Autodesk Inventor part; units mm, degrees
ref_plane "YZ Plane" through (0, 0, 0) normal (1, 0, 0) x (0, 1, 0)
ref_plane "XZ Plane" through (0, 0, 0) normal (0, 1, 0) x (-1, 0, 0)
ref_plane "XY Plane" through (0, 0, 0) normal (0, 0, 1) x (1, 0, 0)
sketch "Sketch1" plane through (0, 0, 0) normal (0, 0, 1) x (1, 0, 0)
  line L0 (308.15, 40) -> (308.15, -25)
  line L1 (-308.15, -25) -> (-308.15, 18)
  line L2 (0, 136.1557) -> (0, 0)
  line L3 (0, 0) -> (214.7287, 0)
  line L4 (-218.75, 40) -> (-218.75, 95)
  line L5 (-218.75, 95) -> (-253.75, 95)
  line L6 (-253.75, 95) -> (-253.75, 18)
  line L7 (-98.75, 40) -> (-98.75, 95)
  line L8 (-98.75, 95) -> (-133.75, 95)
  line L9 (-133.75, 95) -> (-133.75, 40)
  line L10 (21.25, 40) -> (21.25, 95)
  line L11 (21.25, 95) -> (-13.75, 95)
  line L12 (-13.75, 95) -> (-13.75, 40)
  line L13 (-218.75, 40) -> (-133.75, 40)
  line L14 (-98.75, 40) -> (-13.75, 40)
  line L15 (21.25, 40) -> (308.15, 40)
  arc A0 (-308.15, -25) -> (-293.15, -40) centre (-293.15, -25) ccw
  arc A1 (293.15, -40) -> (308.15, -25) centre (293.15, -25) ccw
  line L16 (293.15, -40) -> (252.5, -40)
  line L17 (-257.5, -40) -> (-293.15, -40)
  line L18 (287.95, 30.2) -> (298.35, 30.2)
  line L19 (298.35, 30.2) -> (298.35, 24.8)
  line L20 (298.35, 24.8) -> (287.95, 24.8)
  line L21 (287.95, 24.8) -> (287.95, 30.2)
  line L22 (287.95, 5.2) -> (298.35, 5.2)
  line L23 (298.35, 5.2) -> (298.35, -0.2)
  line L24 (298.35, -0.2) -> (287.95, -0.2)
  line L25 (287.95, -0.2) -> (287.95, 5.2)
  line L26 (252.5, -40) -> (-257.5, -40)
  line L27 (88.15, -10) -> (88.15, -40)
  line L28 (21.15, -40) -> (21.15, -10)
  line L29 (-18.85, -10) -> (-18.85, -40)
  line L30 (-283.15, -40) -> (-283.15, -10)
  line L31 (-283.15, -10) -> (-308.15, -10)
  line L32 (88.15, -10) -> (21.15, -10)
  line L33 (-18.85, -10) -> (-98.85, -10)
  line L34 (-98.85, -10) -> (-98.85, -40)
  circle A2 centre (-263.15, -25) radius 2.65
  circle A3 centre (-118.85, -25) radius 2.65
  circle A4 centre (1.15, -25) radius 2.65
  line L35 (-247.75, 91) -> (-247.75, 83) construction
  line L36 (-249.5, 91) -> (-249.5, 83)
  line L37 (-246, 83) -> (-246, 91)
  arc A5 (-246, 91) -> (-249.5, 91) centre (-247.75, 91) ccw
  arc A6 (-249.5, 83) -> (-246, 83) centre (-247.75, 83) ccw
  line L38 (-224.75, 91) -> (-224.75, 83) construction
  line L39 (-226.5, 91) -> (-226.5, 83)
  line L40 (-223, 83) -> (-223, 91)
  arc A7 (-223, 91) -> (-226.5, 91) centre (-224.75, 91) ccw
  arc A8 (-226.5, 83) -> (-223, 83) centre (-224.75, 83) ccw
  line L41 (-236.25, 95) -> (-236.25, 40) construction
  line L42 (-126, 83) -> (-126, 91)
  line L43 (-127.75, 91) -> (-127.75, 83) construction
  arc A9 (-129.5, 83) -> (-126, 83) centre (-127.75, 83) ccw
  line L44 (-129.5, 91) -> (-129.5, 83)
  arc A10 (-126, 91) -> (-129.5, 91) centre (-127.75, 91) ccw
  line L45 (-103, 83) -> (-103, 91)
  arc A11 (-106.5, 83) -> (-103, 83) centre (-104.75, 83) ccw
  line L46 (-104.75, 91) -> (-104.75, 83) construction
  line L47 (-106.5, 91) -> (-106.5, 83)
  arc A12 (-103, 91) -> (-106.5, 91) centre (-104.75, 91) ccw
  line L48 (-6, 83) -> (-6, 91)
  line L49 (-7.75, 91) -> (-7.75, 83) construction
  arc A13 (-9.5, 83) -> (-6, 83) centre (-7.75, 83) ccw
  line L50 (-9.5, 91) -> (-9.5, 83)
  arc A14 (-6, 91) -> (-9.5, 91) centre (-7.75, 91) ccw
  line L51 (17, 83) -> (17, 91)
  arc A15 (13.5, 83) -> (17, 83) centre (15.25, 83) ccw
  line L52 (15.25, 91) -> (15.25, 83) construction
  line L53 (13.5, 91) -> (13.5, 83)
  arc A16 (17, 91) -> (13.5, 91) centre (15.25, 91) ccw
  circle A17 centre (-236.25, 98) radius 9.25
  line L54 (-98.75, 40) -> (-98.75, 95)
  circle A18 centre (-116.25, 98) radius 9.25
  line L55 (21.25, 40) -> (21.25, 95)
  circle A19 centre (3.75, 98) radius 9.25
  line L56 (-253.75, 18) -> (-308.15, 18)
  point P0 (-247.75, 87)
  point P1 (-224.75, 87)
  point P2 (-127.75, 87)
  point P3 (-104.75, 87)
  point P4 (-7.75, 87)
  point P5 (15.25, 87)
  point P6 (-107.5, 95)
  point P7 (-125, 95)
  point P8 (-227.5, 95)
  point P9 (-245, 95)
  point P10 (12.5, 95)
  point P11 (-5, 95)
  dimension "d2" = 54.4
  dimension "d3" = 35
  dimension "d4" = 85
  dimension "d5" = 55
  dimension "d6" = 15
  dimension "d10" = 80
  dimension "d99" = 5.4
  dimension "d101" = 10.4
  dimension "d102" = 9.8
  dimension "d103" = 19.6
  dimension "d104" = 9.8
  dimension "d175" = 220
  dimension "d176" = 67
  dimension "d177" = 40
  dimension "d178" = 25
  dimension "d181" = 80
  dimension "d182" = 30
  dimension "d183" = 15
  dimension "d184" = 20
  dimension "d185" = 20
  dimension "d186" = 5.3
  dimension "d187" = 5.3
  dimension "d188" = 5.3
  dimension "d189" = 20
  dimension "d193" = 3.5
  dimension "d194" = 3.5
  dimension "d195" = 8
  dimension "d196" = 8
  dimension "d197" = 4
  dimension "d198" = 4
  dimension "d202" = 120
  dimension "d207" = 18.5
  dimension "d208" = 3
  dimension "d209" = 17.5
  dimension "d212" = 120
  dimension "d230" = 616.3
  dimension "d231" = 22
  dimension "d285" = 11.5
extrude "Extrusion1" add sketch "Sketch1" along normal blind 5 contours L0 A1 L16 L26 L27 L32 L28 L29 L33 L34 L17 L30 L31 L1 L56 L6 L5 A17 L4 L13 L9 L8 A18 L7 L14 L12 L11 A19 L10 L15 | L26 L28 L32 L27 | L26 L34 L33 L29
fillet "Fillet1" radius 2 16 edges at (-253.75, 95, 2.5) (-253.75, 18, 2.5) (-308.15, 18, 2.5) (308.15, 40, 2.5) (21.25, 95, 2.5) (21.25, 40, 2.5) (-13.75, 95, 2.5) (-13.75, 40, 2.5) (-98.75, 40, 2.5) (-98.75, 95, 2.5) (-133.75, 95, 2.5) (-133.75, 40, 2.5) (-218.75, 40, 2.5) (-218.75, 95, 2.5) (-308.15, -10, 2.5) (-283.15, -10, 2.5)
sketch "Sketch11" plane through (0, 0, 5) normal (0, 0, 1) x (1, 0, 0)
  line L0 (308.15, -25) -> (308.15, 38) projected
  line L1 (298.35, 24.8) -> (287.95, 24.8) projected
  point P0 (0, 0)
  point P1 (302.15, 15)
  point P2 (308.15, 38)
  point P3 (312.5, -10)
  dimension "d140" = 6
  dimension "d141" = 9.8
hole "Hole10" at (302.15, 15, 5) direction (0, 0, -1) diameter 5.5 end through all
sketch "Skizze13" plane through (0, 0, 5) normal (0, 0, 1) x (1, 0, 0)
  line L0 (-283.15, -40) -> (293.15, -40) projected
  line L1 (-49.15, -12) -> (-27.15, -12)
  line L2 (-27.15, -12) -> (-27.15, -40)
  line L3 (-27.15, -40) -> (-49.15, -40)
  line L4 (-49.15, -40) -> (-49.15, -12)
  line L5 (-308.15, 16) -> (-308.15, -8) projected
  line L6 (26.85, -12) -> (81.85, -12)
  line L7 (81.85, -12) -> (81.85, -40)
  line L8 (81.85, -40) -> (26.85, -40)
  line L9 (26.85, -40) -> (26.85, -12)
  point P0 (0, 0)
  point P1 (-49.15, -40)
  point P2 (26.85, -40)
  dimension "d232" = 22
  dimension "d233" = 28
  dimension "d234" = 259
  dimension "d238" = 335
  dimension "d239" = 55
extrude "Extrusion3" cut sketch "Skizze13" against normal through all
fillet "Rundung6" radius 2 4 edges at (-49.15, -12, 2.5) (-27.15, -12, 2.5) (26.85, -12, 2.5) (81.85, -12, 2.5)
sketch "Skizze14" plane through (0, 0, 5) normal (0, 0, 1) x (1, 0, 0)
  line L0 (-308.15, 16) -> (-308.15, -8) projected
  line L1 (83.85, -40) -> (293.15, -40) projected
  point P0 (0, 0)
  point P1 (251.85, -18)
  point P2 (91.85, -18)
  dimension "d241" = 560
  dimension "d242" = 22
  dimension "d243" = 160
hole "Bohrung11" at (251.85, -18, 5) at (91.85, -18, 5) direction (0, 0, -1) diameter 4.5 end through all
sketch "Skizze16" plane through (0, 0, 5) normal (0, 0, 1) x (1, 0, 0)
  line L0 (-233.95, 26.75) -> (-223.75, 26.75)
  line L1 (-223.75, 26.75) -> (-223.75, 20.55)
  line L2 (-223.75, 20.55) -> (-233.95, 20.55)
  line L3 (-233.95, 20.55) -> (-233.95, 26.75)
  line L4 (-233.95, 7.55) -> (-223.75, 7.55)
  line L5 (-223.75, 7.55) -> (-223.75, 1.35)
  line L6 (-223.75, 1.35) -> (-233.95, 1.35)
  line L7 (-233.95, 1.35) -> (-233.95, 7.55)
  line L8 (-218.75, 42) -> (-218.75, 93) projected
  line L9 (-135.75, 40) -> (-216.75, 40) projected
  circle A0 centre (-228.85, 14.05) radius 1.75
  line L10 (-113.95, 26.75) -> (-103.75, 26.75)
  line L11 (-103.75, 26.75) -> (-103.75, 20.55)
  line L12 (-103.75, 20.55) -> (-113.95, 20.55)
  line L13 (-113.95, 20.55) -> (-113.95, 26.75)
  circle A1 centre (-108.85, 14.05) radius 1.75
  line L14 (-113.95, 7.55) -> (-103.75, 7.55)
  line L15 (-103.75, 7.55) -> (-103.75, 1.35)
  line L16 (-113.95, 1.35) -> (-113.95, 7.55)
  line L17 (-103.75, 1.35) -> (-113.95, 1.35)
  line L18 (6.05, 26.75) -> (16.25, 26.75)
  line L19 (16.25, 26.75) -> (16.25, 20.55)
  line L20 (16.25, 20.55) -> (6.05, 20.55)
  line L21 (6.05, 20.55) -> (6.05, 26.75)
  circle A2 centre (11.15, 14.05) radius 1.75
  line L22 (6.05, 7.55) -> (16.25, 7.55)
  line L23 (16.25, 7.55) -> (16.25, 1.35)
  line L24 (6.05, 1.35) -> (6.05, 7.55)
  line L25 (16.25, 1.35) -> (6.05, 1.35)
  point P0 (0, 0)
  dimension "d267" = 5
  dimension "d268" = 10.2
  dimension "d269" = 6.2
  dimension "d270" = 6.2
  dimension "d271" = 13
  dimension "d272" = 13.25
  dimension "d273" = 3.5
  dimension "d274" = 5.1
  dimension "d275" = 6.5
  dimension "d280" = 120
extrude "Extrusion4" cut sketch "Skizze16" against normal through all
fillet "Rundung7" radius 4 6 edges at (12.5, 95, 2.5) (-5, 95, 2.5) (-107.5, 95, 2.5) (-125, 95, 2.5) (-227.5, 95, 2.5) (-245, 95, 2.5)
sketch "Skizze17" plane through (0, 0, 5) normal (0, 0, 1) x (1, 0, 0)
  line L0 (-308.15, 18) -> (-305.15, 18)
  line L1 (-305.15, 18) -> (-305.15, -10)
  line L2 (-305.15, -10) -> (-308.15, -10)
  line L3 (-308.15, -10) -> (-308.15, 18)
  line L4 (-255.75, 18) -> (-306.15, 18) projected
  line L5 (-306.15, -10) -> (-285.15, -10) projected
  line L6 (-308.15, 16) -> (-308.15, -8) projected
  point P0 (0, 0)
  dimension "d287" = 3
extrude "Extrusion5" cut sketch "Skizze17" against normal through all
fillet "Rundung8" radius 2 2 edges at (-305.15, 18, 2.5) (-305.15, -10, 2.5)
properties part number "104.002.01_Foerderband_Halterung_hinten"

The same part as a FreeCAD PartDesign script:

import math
import FreeCAD as App
import Part
import Sketcher

V = App.Vector


def edges_at(feature, points):
    """Names of the edges that pass closest to the given points."""
    edges = feature.Shape.Edges
    near = lambda p: min(range(len(edges)), key=lambda i: edges[i].distToShape(Part.Vertex(*p))[0])
    return sorted({f"Edge{near(p) + 1}" for p in points})

doc = App.newDocument("Part")
params = doc.addObject("Spreadsheet::Sheet", "Params")
for row, (alias, value) in enumerate([
    ("sketch1_radius", "15 mm"),
    ("sketch1_diameter", "5.3 mm"),
    ("sketch1_width", "85 mm"),
    ("sketch1_width2", "25 mm"),
    ("sketch1_height", "55 mm"),
    ("pad1_length", "5 mm"),
    ("fillet_radius", "2 mm"),
    ("sketch2_diameter", "5.5 mm"),
    ("hole_diameter", "5.5 mm"),
    ("sketch3_width", "22 mm"),
    ("sketch3_width2", "55 mm"),
    ("sketch3_height", "28 mm"),
    ("fillet2_radius", "2 mm"),
    ("sketch4_diameter", "4.5 mm"),
    ("hole2_diameter", "4.5 mm"),
    ("sketch5_diameter", "3.5 mm"),
    ("sketch5_width", "10.2 mm"),
    ("sketch5_height", "6.2 mm"),
    ("fillet3_radius", "4 mm"),
    ("sketch6_width", "3 mm"),
    ("sketch6_height", "28 mm"),
    ("fillet4_radius", "2 mm"),
], start=1):
    params.set(f"A{row}", alias)
    params.set(f"B{row}", "=" + value)
    params.setAlias(f"B{row}", alias)

body = doc.addObject("PartDesign::Body", "Body")

sketch1 = doc.addObject("Sketcher::SketchObject", "Sketch")
body.addObject(sketch1)
sketch1.AttachmentSupport = (doc.XY_Plane, [""])
sketch1.MapMode = "FlatFace"
sketch1.addGeometry([
    Part.LineSegment(V(308.1, -25, 0), V(308.1, 40, 0)),
    Part.LineSegment(V(308.1, 40, 0), V(21.2, 40, 0)),
    Part.LineSegment(V(21.2, 40, 0), V(21.2, 95, 0)),
    Part.LineSegment(V(21.2, 95, 0), V(12.5, 95, 0)),
    Part.ArcOfCircle(Part.Circle(V(3.8, 98, 0), V(0, 0, 1), 9.2), math.radians(-161), math.radians(-19)),
    Part.LineSegment(V(-5, 95, 0), V(-13.8, 95, 0)),
    Part.LineSegment(V(-13.8, 95, 0), V(-13.8, 40, 0)),
    Part.LineSegment(V(-13.8, 40, 0), V(-98.8, 40, 0)),
    Part.LineSegment(V(-98.8, 40, 0), V(-98.8, 95, 0)),
    Part.LineSegment(V(-98.8, 95, 0), V(-107.5, 95, 0)),
    Part.ArcOfCircle(Part.Circle(V(-116.2, 98, 0), V(0, 0, 1), 9.2), math.radians(-161), math.radians(-19)),
    Part.LineSegment(V(-125, 95, 0), V(-133.8, 95, 0)),
    Part.LineSegment(V(-133.8, 95, 0), V(-133.8, 40, 0)),
    Part.LineSegment(V(-133.8, 40, 0), V(-218.8, 40, 0)),
    Part.LineSegment(V(-218.8, 40, 0), V(-218.8, 95, 0)),
    Part.LineSegment(V(-218.8, 95, 0), V(-227.5, 95, 0)),
    Part.ArcOfCircle(Part.Circle(V(-236.2, 98, 0), V(0, 0, 1), 9.2), math.radians(-161), math.radians(-19)),
    Part.LineSegment(V(-245, 95, 0), V(-253.8, 95, 0)),
    Part.LineSegment(V(-253.8, 95, 0), V(-253.8, 18, 0)),
    Part.LineSegment(V(-253.8, 18, 0), V(-308.1, 18, 0)),
    Part.LineSegment(V(-308.1, 18, 0), V(-308.1, -10, 0)),
    Part.LineSegment(V(-308.1, -10, 0), V(-283.1, -10, 0)),
    Part.LineSegment(V(-283.1, -10, 0), V(-283.1, -40, 0)),
    Part.LineSegment(V(-283.1, -40, 0), V(293.1, -40, 0)),
    Part.ArcOfCircle(Part.Circle(V(293.1, -25, 0), V(0, 0, 1), 15), math.radians(-90), math.radians(0)),
    Part.Circle(V(-263.1, -25, 0), V(0, 0, 1), 2.6),
    Part.Circle(V(-118.8, -25, 0), V(0, 0, 1), 2.6),
    Part.Circle(V(1.1, -25, 0), V(0, 0, 1), 2.6),
    Part.LineSegment(V(287.9, -0.2, 0), V(287.9, 5.2, 0)),
    Part.LineSegment(V(287.9, 5.2, 0), V(298.4, 5.2, 0)),
    Part.LineSegment(V(298.4, 5.2, 0), V(298.4, -0.2, 0)),
    Part.LineSegment(V(298.4, -0.2, 0), V(287.9, -0.2, 0)),
    Part.LineSegment(V(287.9, 24.8, 0), V(287.9, 30.2, 0)),
    Part.LineSegment(V(287.9, 30.2, 0), V(298.4, 30.2, 0)),
    Part.LineSegment(V(298.4, 30.2, 0), V(298.4, 24.8, 0)),
    Part.LineSegment(V(298.4, 24.8, 0), V(287.9, 24.8, 0)),
    Part.LineSegment(V(-249.5, 83, 0), V(-249.5, 91, 0)),
    Part.ArcOfCircle(Part.Circle(V(-247.8, 91, 0), V(0, 0, 1), 1.8), math.radians(0), math.radians(180)),
    Part.LineSegment(V(-246, 91, 0), V(-246, 83, 0)),
    Part.ArcOfCircle(Part.Circle(V(-247.8, 83, 0), V(0, 0, 1), 1.8), math.radians(180), math.radians(360)),
    Part.LineSegment(V(-226.5, 83, 0), V(-226.5, 91, 0)),
    Part.ArcOfCircle(Part.Circle(V(-224.8, 91, 0), V(0, 0, 1), 1.8), math.radians(0), math.radians(180)),
    Part.LineSegment(V(-223, 91, 0), V(-223, 83, 0)),
    Part.ArcOfCircle(Part.Circle(V(-224.8, 83, 0), V(0, 0, 1), 1.8), math.radians(180), math.radians(360)),
    Part.LineSegment(V(-126, 91, 0), V(-126, 83, 0)),
    Part.ArcOfCircle(Part.Circle(V(-127.8, 83, 0), V(0, 0, 1), 1.8), math.radians(180), math.radians(360)),
    Part.LineSegment(V(-129.5, 83, 0), V(-129.5, 91, 0)),
    Part.ArcOfCircle(Part.Circle(V(-127.8, 91, 0), V(0, 0, 1), 1.8), math.radians(0), math.radians(180)),
    Part.LineSegment(V(-103, 91, 0), V(-103, 83, 0)),
    Part.ArcOfCircle(Part.Circle(V(-104.8, 83, 0), V(0, 0, 1), 1.8), math.radians(180), math.radians(360)),
    Part.LineSegment(V(-106.5, 83, 0), V(-106.5, 91, 0)),
    Part.ArcOfCircle(Part.Circle(V(-104.8, 91, 0), V(0, 0, 1), 1.8), math.radians(0), math.radians(180)),
    Part.LineSegment(V(-6, 91, 0), V(-6, 83, 0)),
    Part.ArcOfCircle(Part.Circle(V(-7.8, 83, 0), V(0, 0, 1), 1.8), math.radians(180), math.radians(360)),
    Part.LineSegment(V(-9.5, 83, 0), V(-9.5, 91, 0)),
    Part.ArcOfCircle(Part.Circle(V(-7.8, 91, 0), V(0, 0, 1), 1.8), math.radians(0), math.radians(180)),
    Part.LineSegment(V(17, 91, 0), V(17, 83, 0)),
    Part.ArcOfCircle(Part.Circle(V(15.2, 83, 0), V(0, 0, 1), 1.8), math.radians(180), math.radians(360)),
    Part.LineSegment(V(13.5, 83, 0), V(13.5, 91, 0)),
    Part.ArcOfCircle(Part.Circle(V(15.2, 91, 0), V(0, 0, 1), 1.8), math.radians(0), math.radians(180)),
], False)
sketch1.addConstraint([
    Sketcher.Constraint("Coincident", 0, 2, 1, 1),
    Sketcher.Constraint("Coincident", 1, 2, 2, 1),
    Sketcher.Constraint("Coincident", 2, 2, 3, 1),
    Sketcher.Constraint("Coincident", 3, 2, 4, 2),
    Sketcher.Constraint("Coincident", 4, 1, 5, 1),
    Sketcher.Constraint("Coincident", 5, 2, 6, 1),
    Sketcher.Constraint("Coincident", 6, 2, 7, 1),
    Sketcher.Constraint("Coincident", 7, 2, 8, 1),
    Sketcher.Constraint("Coincident", 8, 2, 9, 1),
    Sketcher.Constraint("Coincident", 9, 2, 10, 2),
    Sketcher.Constraint("Coincident", 10, 1, 11, 1),
    Sketcher.Constraint("Coincident", 11, 2, 12, 1),
    Sketcher.Constraint("Coincident", 12, 2, 13, 1),
    Sketcher.Constraint("Coincident", 13, 2, 14, 1),
    Sketcher.Constraint("Coincident", 14, 2, 15, 1),
    Sketcher.Constraint("Coincident", 15, 2, 16, 2),
    Sketcher.Constraint("Coincident", 16, 1, 17, 1),
    Sketcher.Constraint("Coincident", 17, 2, 18, 1),
    Sketcher.Constraint("Coincident", 18, 2, 19, 1),
    Sketcher.Constraint("Coincident", 19, 2, 20, 1),
    Sketcher.Constraint("Coincident", 20, 2, 21, 1),
    Sketcher.Constraint("Coincident", 21, 2, 22, 1),
    Sketcher.Constraint("Coincident", 22, 2, 23, 1),
    Sketcher.Constraint("Tangent", 23, 2, 24, 1),
    Sketcher.Constraint("Tangent", 24, 2, 0, 1),
    Sketcher.Constraint("Coincident", 28, 2, 29, 1),
    Sketcher.Constraint("Coincident", 29, 2, 30, 1),
    Sketcher.Constraint("Coincident", 30, 2, 31, 1),
    Sketcher.Constraint("Coincident", 31, 2, 28, 1),
    Sketcher.Constraint("Coincident", 32, 2, 33, 1),
    Sketcher.Constraint("Coincident", 33, 2, 34, 1),
    Sketcher.Constraint("Coincident", 34, 2, 35, 1),
    Sketcher.Constraint("Coincident", 35, 2, 32, 1),
    Sketcher.Constraint("Tangent", 36, 2, 37, 2),
    Sketcher.Constraint("Tangent", 37, 1, 38, 1),
    Sketcher.Constraint("Tangent", 38, 2, 39, 2),
    Sketcher.Constraint("Tangent", 39, 1, 36, 1),
    Sketcher.Constraint("Tangent", 40, 2, 41, 2),
    Sketcher.Constraint("Tangent", 41, 1, 42, 1),
    Sketcher.Constraint("Tangent", 42, 2, 43, 2),
    Sketcher.Constraint("Tangent", 43, 1, 40, 1),
    Sketcher.Constraint("Tangent", 44, 2, 45, 2),
    Sketcher.Constraint("Tangent", 45, 1, 46, 1),
    Sketcher.Constraint("Tangent", 46, 2, 47, 2),
    Sketcher.Constraint("Tangent", 47, 1, 44, 1),
    Sketcher.Constraint("Tangent", 48, 2, 49, 2),
    Sketcher.Constraint("Tangent", 49, 1, 50, 1),
    Sketcher.Constraint("Tangent", 50, 2, 51, 2),
    Sketcher.Constraint("Tangent", 51, 1, 48, 1),
    Sketcher.Constraint("Tangent", 52, 2, 53, 2),
    Sketcher.Constraint("Tangent", 53, 1, 54, 1),
    Sketcher.Constraint("Tangent", 54, 2, 55, 2),
    Sketcher.Constraint("Tangent", 55, 1, 52, 1),
    Sketcher.Constraint("Tangent", 56, 2, 57, 2),
    Sketcher.Constraint("Tangent", 57, 1, 58, 1),
    Sketcher.Constraint("Tangent", 58, 2, 59, 2),
    Sketcher.Constraint("Tangent", 59, 1, 56, 1),
    Sketcher.Constraint("Vertical", 0),
    Sketcher.Constraint("Horizontal", 1),
    Sketcher.Constraint("Vertical", 2),
    Sketcher.Constraint("Horizontal", 3),
    Sketcher.Constraint("Horizontal", 5),
    Sketcher.Constraint("Vertical", 6),
    Sketcher.Constraint("Horizontal", 7),
    Sketcher.Constraint("Vertical", 8),
    Sketcher.Constraint("Horizontal", 9),
    Sketcher.Constraint("Horizontal", 11),
    Sketcher.Constraint("Vertical", 12),
    Sketcher.Constraint("Horizontal", 13),
    Sketcher.Constraint("Vertical", 14),
    Sketcher.Constraint("Horizontal", 15),
    Sketcher.Constraint("Horizontal", 17),
    Sketcher.Constraint("Vertical", 18),
    Sketcher.Constraint("Horizontal", 19),
    Sketcher.Constraint("Vertical", 20),
    Sketcher.Constraint("Horizontal", 21),
    Sketcher.Constraint("Vertical", 22),
    Sketcher.Constraint("Horizontal", 23),
    Sketcher.Constraint("Vertical", 28),
    Sketcher.Constraint("Horizontal", 29),
    Sketcher.Constraint("Vertical", 30),
    Sketcher.Constraint("Horizontal", 31),
    Sketcher.Constraint("Vertical", 32),
    Sketcher.Constraint("Horizontal", 33),
    Sketcher.Constraint("Vertical", 34),
    Sketcher.Constraint("Horizontal", 35),
    Sketcher.Constraint("Vertical", 36),
    Sketcher.Constraint("Vertical", 38),
    Sketcher.Constraint("Vertical", 40),
    Sketcher.Constraint("Vertical", 42),
    Sketcher.Constraint("Vertical", 44),
    Sketcher.Constraint("Vertical", 46),
    Sketcher.Constraint("Vertical", 48),
    Sketcher.Constraint("Vertical", 50),
    Sketcher.Constraint("Vertical", 52),
    Sketcher.Constraint("Vertical", 54),
    Sketcher.Constraint("Vertical", 56),
    Sketcher.Constraint("Vertical", 58),
    Sketcher.Constraint("Equal", 4, 10),
    Sketcher.Constraint("Equal", 10, 16),
    Sketcher.Constraint("Equal", 25, 26),
    Sketcher.Constraint("Equal", 26, 27),
    Sketcher.Constraint("Equal", 39, 41),
    Sketcher.Constraint("Equal", 43, 45),
    Sketcher.Constraint("Equal", 47, 49),
    Sketcher.Constraint("Equal", 51, 53),
    Sketcher.Constraint("Equal", 55, 57),
    Sketcher.Constraint("Horizontal", 4, 3, 10, 3),
    Sketcher.Constraint("Horizontal", 10, 3, 16, 3),
    Sketcher.Constraint("Horizontal", 24, 3, 25, 3),
    Sketcher.Constraint("Horizontal", 25, 3, 26, 3),
    Sketcher.Constraint("Horizontal", 26, 3, 27, 3),
    Sketcher.Constraint("Horizontal", 37, 3, 41, 3),
    Sketcher.Constraint("Horizontal", 39, 3, 43, 3),
    Sketcher.Constraint("Horizontal", 43, 3, 45, 3),
    Sketcher.Constraint("Horizontal", 41, 3, 47, 3),
    Sketcher.Constraint("Horizontal", 45, 3, 49, 3),
    Sketcher.Constraint("Horizontal", 47, 3, 51, 3),
    Sketcher.Constraint("Horizontal", 49, 3, 53, 3),
    Sketcher.Constraint("Horizontal", 51, 3, 55, 3),
    Sketcher.Constraint("Horizontal", 53, 3, 57, 3),
    Sketcher.Constraint("Horizontal", 55, 3, 59, 3),
    Sketcher.Constraint("Horizontal", 3, 2, 4, 1),
    Sketcher.Constraint("Horizontal", 1, 2, 6, 2),
    Sketcher.Constraint("Horizontal", 5, 2, 8, 2),
    Sketcher.Constraint("Horizontal", 9, 2, 10, 1),
    Sketcher.Constraint("Horizontal", 7, 2, 12, 2),
    Sketcher.Constraint("Horizontal", 11, 2, 14, 2),
    Sketcher.Constraint("Horizontal", 15, 2, 16, 1),
    Sketcher.Constraint("Vertical", 31, 2, 32, 2),
    Sketcher.Constraint("Vertical", 30, 2, 33, 2),
    Sketcher.Constraint("Equal", 3, 5),
    Sketcher.Constraint("Equal", 5, 9),
    Sketcher.Constraint("Equal", 9, 11),
    Sketcher.Constraint("Equal", 7, 13),
    Sketcher.Constraint("Equal", 11, 15),
    Sketcher.Constraint("Equal", 15, 17),
    Sketcher.Constraint("Equal", 30, 32),
    Sketcher.Constraint("Radius", 24, 15.0),
    Sketcher.Constraint("Diameter", 25, 5.3),
    Sketcher.Constraint("DistanceX", 7, 2, 7, 1, 85.0),
    Sketcher.Constraint("DistanceX", 21, 1, 21, 2, 25.0),
    Sketcher.Constraint("DistanceY", 2, 1, 2, 2, 55.0),
    Sketcher.Constraint("DistanceY", 22, 2, 22, 1, 30.0),
    Sketcher.Constraint("DistanceY", 36, 1, 36, 2, 8.0),
    Sketcher.Constraint("Radius", 4, 9.25),
    Sketcher.Constraint("Radius", 37, 1.75),
    Sketcher.Constraint("DistanceX", 19, 2, 19, 1, 54.4),
    Sketcher.Constraint("DistanceX", 29, 1, 29, 2, 10.4),
    Sketcher.Constraint("DistanceY", 28, 1, 28, 2, 5.4),
    Sketcher.Constraint("DistanceY", 24, 3, -1, 1, 25.0),
    Sketcher.Constraint("DistanceY", -1, 1, 0, 2, 40.0),
    Sketcher.Constraint("DistanceY", 18, 2, 18, 1, 77.0),
    Sketcher.Constraint("DistanceX", 1, 2, 1, 1, 286.9),
    Sketcher.Constraint("DistanceX", 23, 1, 23, 2, 576.3),
    Sketcher.Constraint("DistanceY", -1, 1, 4, 3, 98.0),
    Sketcher.Constraint("DistanceY", -1, 1, 37, 3, 91.0),
    Sketcher.Constraint("DistanceX", 4, 1, -1, 1, 5.0),
    Sketcher.Constraint("DistanceX", 37, 1, -1, 1, 246.0),
    Sketcher.Constraint("DistanceX", 41, 1, -1, 1, 223.0),
    Sketcher.Constraint("DistanceX", 44, 2, -1, 1, 126.0),
    Sketcher.Constraint("DistanceX", 48, 2, -1, 1, 103.0),
    Sketcher.Constraint("DistanceX", 52, 2, -1, 1, 6.0),
    Sketcher.Constraint("DistanceX", -1, 1, 56, 2, 17.0),
    Sketcher.Constraint("DistanceY", -1, 1, 28, 2, 5.2),
    Sketcher.Constraint("DistanceY", -1, 1, 32, 2, 30.2),
    Sketcher.Constraint("DistanceX", 25, 3, -1, 1, 263.15),
    Sketcher.Constraint("DistanceX", 26, 3, -1, 1, 118.85),
    Sketcher.Constraint("DistanceX", -1, 1, 27, 3, 1.15),
    Sketcher.Constraint("DistanceX", -1, 1, 28, 2, 287.95),
])
sketch1.setExpression("Constraints[138]", "Params.sketch1_radius")
sketch1.setExpression("Constraints[139]", "Params.sketch1_diameter")
sketch1.setExpression("Constraints[140]", "Params.sketch1_width")
sketch1.setExpression("Constraints[141]", "Params.sketch1_width2")
sketch1.setExpression("Constraints[142]", "Params.sketch1_height")
pad1 = doc.addObject("PartDesign::Pad", "Pad")
body.addObject(pad1)
pad1.Profile = sketch1
pad1.setExpression("Length", "Params.pad1_length")
doc.recompute()

fillet = doc.addObject("PartDesign::Fillet", "Fillet")
body.addObject(fillet)
fillet.Base = (pad1, edges_at(pad1, [
    (-253.75, 95, 2.5),
    (-253.75, 18, 2.5),
    (-308.15, 18, 2.5),
    (308.15, 40, 2.5),
    (21.25, 95, 2.5),
    (21.25, 40, 2.5),
    (-13.75, 95, 2.5),
    (-13.75, 40, 2.5),
    (-98.75, 40, 2.5),
    (-98.75, 95, 2.5),
    (-133.75, 95, 2.5),
    (-133.75, 40, 2.5),
    (-218.75, 40, 2.5),
    (-218.75, 95, 2.5),
    (-308.15, -10, 2.5),
    (-283.15, -10, 2.5),
]))
fillet.setExpression("Radius", "Params.fillet_radius")

sketch2 = doc.addObject("Sketcher::SketchObject", "Sketch001")
body.addObject(sketch2)
sketch2.AttachmentSupport = (doc.XY_Plane, [""])
sketch2.MapMode = "FlatFace"
sketch2.AttachmentOffset = App.Placement(V(0, 0, 5), App.Rotation())
sketch2.addGeometry(Part.Circle(V(302.1, 15, 0), V(0, 0, 1), 2.8), False)
sketch2.addConstraint([
    Sketcher.Constraint("Diameter", 0, 5.5),
    Sketcher.Constraint("DistanceY", -1, 1, 0, 3, 15.0),
    Sketcher.Constraint("DistanceX", -1, 1, 0, 3, 302.15),
])
sketch2.setExpression("Constraints[0]", "Params.sketch2_diameter")
doc.recompute()
hole = doc.addObject("PartDesign::Hole", "Hole")
body.addObject(hole)
hole.Profile = sketch2
hole.ThreadType = "None"
hole.setExpression("Diameter", "Params.hole_diameter")
hole.DepthType = "ThroughAll"

sketch3 = doc.addObject("Sketcher::SketchObject", "Sketch002")
body.addObject(sketch3)
sketch3.AttachmentSupport = (doc.XY_Plane, [""])
sketch3.MapMode = "FlatFace"
sketch3.AttachmentOffset = App.Placement(V(0, 0, 5), App.Rotation())
sketch3.addGeometry([
    Part.LineSegment(V(-49, -12, 0), V(-49, -40, 0)),
    Part.LineSegment(V(-49, -40, 0), V(-27, -40, 0)),
    Part.LineSegment(V(-27, -40, 0), V(-27, -12, 0)),
    Part.LineSegment(V(-27, -12, 0), V(-49, -12, 0)),
    Part.LineSegment(V(27, -12, 0), V(27, -40, 0)),
    Part.LineSegment(V(27, -40, 0), V(82, -40, 0)),
    Part.LineSegment(V(82, -40, 0), V(82, -12, 0)),
    Part.LineSegment(V(82, -12, 0), V(27, -12, 0)),
], False)
sketch3.addConstraint([
    Sketcher.Constraint("Coincident", 0, 2, 1, 1),
    Sketcher.Constraint("Coincident", 1, 2, 2, 1),
    Sketcher.Constraint("Coincident", 2, 2, 3, 1),
    Sketcher.Constraint("Coincident", 3, 2, 0, 1),
    Sketcher.Constraint("Coincident", 4, 2, 5, 1),
    Sketcher.Constraint("Coincident", 5, 2, 6, 1),
    Sketcher.Constraint("Coincident", 6, 2, 7, 1),
    Sketcher.Constraint("Coincident", 7, 2, 4, 1),
    Sketcher.Constraint("Vertical", 0),
    Sketcher.Constraint("Horizontal", 1),
    Sketcher.Constraint("Vertical", 2),
    Sketcher.Constraint("Horizontal", 3),
    Sketcher.Constraint("Vertical", 4),
    Sketcher.Constraint("Horizontal", 5),
    Sketcher.Constraint("Vertical", 6),
    Sketcher.Constraint("Horizontal", 7),
    Sketcher.Constraint("Horizontal", 1, 2, 4, 2),
    Sketcher.Constraint("Horizontal", 3, 2, 6, 2),
    Sketcher.Constraint("DistanceX", 1, 1, 1, 2, 22.0),
    Sketcher.Constraint("DistanceX", 5, 1, 5, 2, 55.0),
    Sketcher.Constraint("DistanceY", 0, 2, 0, 1, 28.0),
    Sketcher.Constraint("DistanceY", 0, 2, -1, 1, 40.0),
    Sketcher.Constraint("DistanceX", 1, 2, 4, 2, 54.0),
    Sketcher.Constraint("DistanceX", 0, 2, -1, 1, 49.15),
])
sketch3.setExpression("Constraints[18]", "Params.sketch3_width")
sketch3.setExpression("Constraints[19]", "Params.sketch3_width2")
sketch3.setExpression("Constraints[20]", "Params.sketch3_height")
pocket1 = doc.addObject("PartDesign::Pocket", "Pocket")
body.addObject(pocket1)
pocket1.Profile = sketch3
pocket1.Type = "ThroughAll"
doc.recompute()

fillet2 = doc.addObject("PartDesign::Fillet", "Fillet001")
body.addObject(fillet2)
fillet2.Base = (pocket1, edges_at(pocket1, [
    (-49.15, -12, 2.5),
    (-27.15, -12, 2.5),
    (26.85, -12, 2.5),
    (81.85, -12, 2.5),
]))
fillet2.setExpression("Radius", "Params.fillet2_radius")

sketch4 = doc.addObject("Sketcher::SketchObject", "Sketch003")
body.addObject(sketch4)
sketch4.AttachmentSupport = (doc.XY_Plane, [""])
sketch4.MapMode = "FlatFace"
sketch4.AttachmentOffset = App.Placement(V(0, 0, 5), App.Rotation())
sketch4.addGeometry([
    Part.Circle(V(251.8, -18, 0), V(0, 0, 1), 2.2),
    Part.Circle(V(91.8, -18, 0), V(0, 0, 1), 2.2),
], False)
sketch4.addConstraint([
    Sketcher.Constraint("Equal", 0, 1),
    Sketcher.Constraint("Horizontal", 0, 3, 1, 3),
    Sketcher.Constraint("Diameter", 0, 4.5),
    Sketcher.Constraint("DistanceY", 0, 3, -1, 1, 18.0),
    Sketcher.Constraint("DistanceX", 1, 3, 0, 3, 160.0),
    Sketcher.Constraint("DistanceX", -1, 1, 0, 3, 251.85),
])
sketch4.setExpression("Constraints[2]", "Params.sketch4_diameter")
doc.recompute()
hole2 = doc.addObject("PartDesign::Hole", "Hole001")
body.addObject(hole2)
hole2.Profile = sketch4
hole2.ThreadType = "None"
hole2.setExpression("Diameter", "Params.hole2_diameter")
hole2.DepthType = "ThroughAll"

sketch5 = doc.addObject("Sketcher::SketchObject", "Sketch004")
body.addObject(sketch5)
sketch5.AttachmentSupport = (doc.XY_Plane, [""])
sketch5.MapMode = "FlatFace"
sketch5.AttachmentOffset = App.Placement(V(0, 0, 5), App.Rotation())
sketch5.addGeometry([
    Part.LineSegment(V(-223.8, 26.8, 0), V(-233.9, 26.8, 0)),
    Part.LineSegment(V(-233.9, 26.8, 0), V(-233.9, 20.6, 0)),
    Part.LineSegment(V(-233.9, 20.6, 0), V(-223.8, 20.6, 0)),
    Part.LineSegment(V(-223.8, 20.6, 0), V(-223.8, 26.8, 0)),
    Part.LineSegment(V(-223.8, 7.5, 0), V(-233.9, 7.5, 0)),
    Part.LineSegment(V(-233.9, 7.5, 0), V(-233.9, 1.4, 0)),
    Part.LineSegment(V(-233.9, 1.4, 0), V(-223.8, 1.4, 0)),
    Part.LineSegment(V(-223.8, 1.4, 0), V(-223.8, 7.5, 0)),
    Part.Circle(V(-228.8, 14.1, 0), V(0, 0, 1), 1.8),
    Part.LineSegment(V(-103.8, 26.8, 0), V(-114, 26.8, 0)),
    Part.LineSegment(V(-114, 26.8, 0), V(-114, 20.6, 0)),
    Part.LineSegment(V(-114, 20.6, 0), V(-103.8, 20.6, 0)),
    Part.LineSegment(V(-103.8, 20.6, 0), V(-103.8, 26.8, 0)),
    Part.Circle(V(-108.8, 14.1, 0), V(0, 0, 1), 1.8),
    Part.LineSegment(V(-103.8, 7.5, 0), V(-114, 7.5, 0)),
    Part.LineSegment(V(-114, 7.5, 0), V(-114, 1.4, 0)),
    Part.LineSegment(V(-114, 1.4, 0), V(-103.8, 1.4, 0)),
    Part.LineSegment(V(-103.8, 1.4, 0), V(-103.8, 7.5, 0)),
    Part.LineSegment(V(16.2, 26.8, 0), V(6, 26.8, 0)),
    Part.LineSegment(V(6, 26.8, 0), V(6, 20.6, 0)),
    Part.LineSegment(V(6, 20.6, 0), V(16.2, 20.6, 0)),
    Part.LineSegment(V(16.2, 20.6, 0), V(16.2, 26.8, 0)),
    Part.Circle(V(11.2, 14.1, 0), V(0, 0, 1), 1.8),
    Part.LineSegment(V(16.2, 7.5, 0), V(6, 7.5, 0)),
    Part.LineSegment(V(6, 7.5, 0), V(6, 1.4, 0)),
    Part.LineSegment(V(6, 1.4, 0), V(16.2, 1.4, 0)),
    Part.LineSegment(V(16.2, 1.4, 0), V(16.2, 7.5, 0)),
], False)
sketch5.addConstraint([
    Sketcher.Constraint("Coincident", 0, 2, 1, 1),
    Sketcher.Constraint("Coincident", 1, 2, 2, 1),
    Sketcher.Constraint("Coincident", 2, 2, 3, 1),
    Sketcher.Constraint("Coincident", 3, 2, 0, 1),
    Sketcher.Constraint("Coincident", 4, 2, 5, 1),
    Sketcher.Constraint("Coincident", 5, 2, 6, 1),
    Sketcher.Constraint("Coincident", 6, 2, 7, 1),
    Sketcher.Constraint("Coincident", 7, 2, 4, 1),
    Sketcher.Constraint("Coincident", 9, 2, 10, 1),
    Sketcher.Constraint("Coincident", 10, 2, 11, 1),
    Sketcher.Constraint("Coincident", 11, 2, 12, 1),
    Sketcher.Constraint("Coincident", 12, 2, 9, 1),
    Sketcher.Constraint("Coincident", 14, 2, 15, 1),
    Sketcher.Constraint("Coincident", 15, 2, 16, 1),
    Sketcher.Constraint("Coincident", 16, 2, 17, 1),
    Sketcher.Constraint("Coincident", 17, 2, 14, 1),
    Sketcher.Constraint("Coincident", 18, 2, 19, 1),
    Sketcher.Constraint("Coincident", 19, 2, 20, 1),
    Sketcher.Constraint("Coincident", 20, 2, 21, 1),
    Sketcher.Constraint("Coincident", 21, 2, 18, 1),
    Sketcher.Constraint("Coincident", 23, 2, 24, 1),
    Sketcher.Constraint("Coincident", 24, 2, 25, 1),
    Sketcher.Constraint("Coincident", 25, 2, 26, 1),
    Sketcher.Constraint("Coincident", 26, 2, 23, 1),
    Sketcher.Constraint("Horizontal", 0),
    Sketcher.Constraint("Vertical", 1),
    Sketcher.Constraint("Horizontal", 2),
    Sketcher.Constraint("Vertical", 3),
    Sketcher.Constraint("Horizontal", 4),
    Sketcher.Constraint("Vertical", 5),
    Sketcher.Constraint("Horizontal", 6),
    Sketcher.Constraint("Vertical", 7),
    Sketcher.Constraint("Horizontal", 9),
    Sketcher.Constraint("Vertical", 10),
    Sketcher.Constraint("Horizontal", 11),
    Sketcher.Constraint("Vertical", 12),
    Sketcher.Constraint("Horizontal", 14),
    Sketcher.Constraint("Vertical", 15),
    Sketcher.Constraint("Horizontal", 16),
    Sketcher.Constraint("Vertical", 17),
    Sketcher.Constraint("Horizontal", 18),
    Sketcher.Constraint("Vertical", 19),
    Sketcher.Constraint("Horizontal", 20),
    Sketcher.Constraint("Vertical", 21),
    Sketcher.Constraint("Horizontal", 23),
    Sketcher.Constraint("Vertical", 24),
    Sketcher.Constraint("Horizontal", 25),
    Sketcher.Constraint("Vertical", 26),
    Sketcher.Constraint("Equal", 8, 13),
    Sketcher.Constraint("Equal", 13, 22),
    Sketcher.Constraint("Horizontal", 8, 3, 13, 3),
    Sketcher.Constraint("Horizontal", 13, 3, 22, 3),
    Sketcher.Constraint("Horizontal", 3, 2, 9, 2),
    Sketcher.Constraint("Horizontal", 2, 2, 10, 2),
    Sketcher.Constraint("Horizontal", 7, 2, 14, 2),
    Sketcher.Constraint("Horizontal", 6, 2, 15, 2),
    Sketcher.Constraint("Horizontal", 12, 2, 18, 2),
    Sketcher.Constraint("Horizontal", 11, 2, 19, 2),
    Sketcher.Constraint("Horizontal", 17, 2, 23, 2),
    Sketcher.Constraint("Horizontal", 16, 2, 24, 2),
    Sketcher.Constraint("Vertical", 1, 2, 4, 2),
    Sketcher.Constraint("Vertical", 3, 2, 6, 2),
    Sketcher.Constraint("Vertical", 10, 2, 14, 2),
    Sketcher.Constraint("Vertical", 12, 2, 16, 2),
    Sketcher.Constraint("Vertical", 19, 2, 23, 2),
    Sketcher.Constraint("Vertical", 21, 2, 25, 2),
    Sketcher.Constraint("Equal", 6, 9),
    Sketcher.Constraint("Equal", 16, 18),
    Sketcher.Constraint("Equal", 3, 5),
    Sketcher.Constraint("Diameter", 8, 3.5),
    Sketcher.Constraint("DistanceX", 0, 2, 0, 1, 10.2),
    Sketcher.Constraint("DistanceY", 1, 2, 1, 1, 6.2),
    Sketcher.Constraint("DistanceX", 8, 3, 13, 3, 120.0),
    Sketcher.Constraint("DistanceX", 13, 3, 22, 3, 120.0),
    Sketcher.Constraint("DistanceY", 4, 2, 1, 2, 13.0),
    Sketcher.Constraint("DistanceX", 2, 2, 11, 2, 120.0),
    Sketcher.Constraint("DistanceX", 11, 2, 20, 2, 120.0),
    Sketcher.Constraint("DistanceX", 0, 2, 8, 3, 5.1),
    Sketcher.Constraint("DistanceY", 8, 3, 1, 2, 6.5),
    Sketcher.Constraint("DistanceX", 8, 3, -1, 1, 228.85),
    Sketcher.Constraint("DistanceY", -1, 1, 8, 3, 14.05),
])
sketch5.setExpression("Constraints[69]", "Params.sketch5_diameter")
sketch5.setExpression("Constraints[70]", "Params.sketch5_width")
sketch5.setExpression("Constraints[71]", "Params.sketch5_height")
pocket2 = doc.addObject("PartDesign::Pocket", "Pocket001")
body.addObject(pocket2)
pocket2.Profile = sketch5
pocket2.Type = "ThroughAll"
doc.recompute()

fillet3 = doc.addObject("PartDesign::Fillet", "Fillet002")
body.addObject(fillet3)
fillet3.Base = (pocket2, edges_at(pocket2, [
    (12.5, 95, 2.5),
    (-5, 95, 2.5),
    (-107.5, 95, 2.5),
    (-125, 95, 2.5),
    (-227.5, 95, 2.5),
    (-245, 95, 2.5),
]))
fillet3.setExpression("Radius", "Params.fillet3_radius")

sketch6 = doc.addObject("Sketcher::SketchObject", "Sketch005")
body.addObject(sketch6)
sketch6.AttachmentSupport = (doc.XY_Plane, [""])
sketch6.MapMode = "FlatFace"
sketch6.AttachmentOffset = App.Placement(V(0, 0, 5), App.Rotation())
sketch6.addGeometry([
    Part.LineSegment(V(-305.1, 18, 0), V(-308.1, 18, 0)),
    Part.LineSegment(V(-308.1, 18, 0), V(-308.1, -10, 0)),
    Part.LineSegment(V(-308.1, -10, 0), V(-305.1, -10, 0)),
    Part.LineSegment(V(-305.1, -10, 0), V(-305.1, 18, 0)),
], False)
sketch6.addConstraint([
    Sketcher.Constraint("Coincident", 0, 2, 1, 1),
    Sketcher.Constraint("Coincident", 1, 2, 2, 1),
    Sketcher.Constraint("Coincident", 2, 2, 3, 1),
    Sketcher.Constraint("Coincident", 3, 2, 0, 1),
    Sketcher.Constraint("Horizontal", 0),
    Sketcher.Constraint("Vertical", 1),
    Sketcher.Constraint("Horizontal", 2),
    Sketcher.Constraint("Vertical", 3),
    Sketcher.Constraint("DistanceX", 0, 2, 0, 1, 3.0),
    Sketcher.Constraint("DistanceY", 1, 2, 1, 1, 28.0),
    Sketcher.Constraint("DistanceY", -1, 1, 0, 2, 18.0),
    Sketcher.Constraint("DistanceX", 0, 2, -1, 1, 308.15),
])
sketch6.setExpression("Constraints[8]", "Params.sketch6_width")
sketch6.setExpression("Constraints[9]", "Params.sketch6_height")
pocket3 = doc.addObject("PartDesign::Pocket", "Pocket002")
body.addObject(pocket3)
pocket3.Profile = sketch6
pocket3.Type = "ThroughAll"
doc.recompute()

fillet4 = doc.addObject("PartDesign::Fillet", "Fillet003")
body.addObject(fillet4)
fillet4.Base = (pocket3, edges_at(pocket3, [(-305.15, 18, 2.5), (-305.15, -10, 2.5)]))
fillet4.setExpression("Radius", "Params.fillet4_radius")

doc.recompute()
